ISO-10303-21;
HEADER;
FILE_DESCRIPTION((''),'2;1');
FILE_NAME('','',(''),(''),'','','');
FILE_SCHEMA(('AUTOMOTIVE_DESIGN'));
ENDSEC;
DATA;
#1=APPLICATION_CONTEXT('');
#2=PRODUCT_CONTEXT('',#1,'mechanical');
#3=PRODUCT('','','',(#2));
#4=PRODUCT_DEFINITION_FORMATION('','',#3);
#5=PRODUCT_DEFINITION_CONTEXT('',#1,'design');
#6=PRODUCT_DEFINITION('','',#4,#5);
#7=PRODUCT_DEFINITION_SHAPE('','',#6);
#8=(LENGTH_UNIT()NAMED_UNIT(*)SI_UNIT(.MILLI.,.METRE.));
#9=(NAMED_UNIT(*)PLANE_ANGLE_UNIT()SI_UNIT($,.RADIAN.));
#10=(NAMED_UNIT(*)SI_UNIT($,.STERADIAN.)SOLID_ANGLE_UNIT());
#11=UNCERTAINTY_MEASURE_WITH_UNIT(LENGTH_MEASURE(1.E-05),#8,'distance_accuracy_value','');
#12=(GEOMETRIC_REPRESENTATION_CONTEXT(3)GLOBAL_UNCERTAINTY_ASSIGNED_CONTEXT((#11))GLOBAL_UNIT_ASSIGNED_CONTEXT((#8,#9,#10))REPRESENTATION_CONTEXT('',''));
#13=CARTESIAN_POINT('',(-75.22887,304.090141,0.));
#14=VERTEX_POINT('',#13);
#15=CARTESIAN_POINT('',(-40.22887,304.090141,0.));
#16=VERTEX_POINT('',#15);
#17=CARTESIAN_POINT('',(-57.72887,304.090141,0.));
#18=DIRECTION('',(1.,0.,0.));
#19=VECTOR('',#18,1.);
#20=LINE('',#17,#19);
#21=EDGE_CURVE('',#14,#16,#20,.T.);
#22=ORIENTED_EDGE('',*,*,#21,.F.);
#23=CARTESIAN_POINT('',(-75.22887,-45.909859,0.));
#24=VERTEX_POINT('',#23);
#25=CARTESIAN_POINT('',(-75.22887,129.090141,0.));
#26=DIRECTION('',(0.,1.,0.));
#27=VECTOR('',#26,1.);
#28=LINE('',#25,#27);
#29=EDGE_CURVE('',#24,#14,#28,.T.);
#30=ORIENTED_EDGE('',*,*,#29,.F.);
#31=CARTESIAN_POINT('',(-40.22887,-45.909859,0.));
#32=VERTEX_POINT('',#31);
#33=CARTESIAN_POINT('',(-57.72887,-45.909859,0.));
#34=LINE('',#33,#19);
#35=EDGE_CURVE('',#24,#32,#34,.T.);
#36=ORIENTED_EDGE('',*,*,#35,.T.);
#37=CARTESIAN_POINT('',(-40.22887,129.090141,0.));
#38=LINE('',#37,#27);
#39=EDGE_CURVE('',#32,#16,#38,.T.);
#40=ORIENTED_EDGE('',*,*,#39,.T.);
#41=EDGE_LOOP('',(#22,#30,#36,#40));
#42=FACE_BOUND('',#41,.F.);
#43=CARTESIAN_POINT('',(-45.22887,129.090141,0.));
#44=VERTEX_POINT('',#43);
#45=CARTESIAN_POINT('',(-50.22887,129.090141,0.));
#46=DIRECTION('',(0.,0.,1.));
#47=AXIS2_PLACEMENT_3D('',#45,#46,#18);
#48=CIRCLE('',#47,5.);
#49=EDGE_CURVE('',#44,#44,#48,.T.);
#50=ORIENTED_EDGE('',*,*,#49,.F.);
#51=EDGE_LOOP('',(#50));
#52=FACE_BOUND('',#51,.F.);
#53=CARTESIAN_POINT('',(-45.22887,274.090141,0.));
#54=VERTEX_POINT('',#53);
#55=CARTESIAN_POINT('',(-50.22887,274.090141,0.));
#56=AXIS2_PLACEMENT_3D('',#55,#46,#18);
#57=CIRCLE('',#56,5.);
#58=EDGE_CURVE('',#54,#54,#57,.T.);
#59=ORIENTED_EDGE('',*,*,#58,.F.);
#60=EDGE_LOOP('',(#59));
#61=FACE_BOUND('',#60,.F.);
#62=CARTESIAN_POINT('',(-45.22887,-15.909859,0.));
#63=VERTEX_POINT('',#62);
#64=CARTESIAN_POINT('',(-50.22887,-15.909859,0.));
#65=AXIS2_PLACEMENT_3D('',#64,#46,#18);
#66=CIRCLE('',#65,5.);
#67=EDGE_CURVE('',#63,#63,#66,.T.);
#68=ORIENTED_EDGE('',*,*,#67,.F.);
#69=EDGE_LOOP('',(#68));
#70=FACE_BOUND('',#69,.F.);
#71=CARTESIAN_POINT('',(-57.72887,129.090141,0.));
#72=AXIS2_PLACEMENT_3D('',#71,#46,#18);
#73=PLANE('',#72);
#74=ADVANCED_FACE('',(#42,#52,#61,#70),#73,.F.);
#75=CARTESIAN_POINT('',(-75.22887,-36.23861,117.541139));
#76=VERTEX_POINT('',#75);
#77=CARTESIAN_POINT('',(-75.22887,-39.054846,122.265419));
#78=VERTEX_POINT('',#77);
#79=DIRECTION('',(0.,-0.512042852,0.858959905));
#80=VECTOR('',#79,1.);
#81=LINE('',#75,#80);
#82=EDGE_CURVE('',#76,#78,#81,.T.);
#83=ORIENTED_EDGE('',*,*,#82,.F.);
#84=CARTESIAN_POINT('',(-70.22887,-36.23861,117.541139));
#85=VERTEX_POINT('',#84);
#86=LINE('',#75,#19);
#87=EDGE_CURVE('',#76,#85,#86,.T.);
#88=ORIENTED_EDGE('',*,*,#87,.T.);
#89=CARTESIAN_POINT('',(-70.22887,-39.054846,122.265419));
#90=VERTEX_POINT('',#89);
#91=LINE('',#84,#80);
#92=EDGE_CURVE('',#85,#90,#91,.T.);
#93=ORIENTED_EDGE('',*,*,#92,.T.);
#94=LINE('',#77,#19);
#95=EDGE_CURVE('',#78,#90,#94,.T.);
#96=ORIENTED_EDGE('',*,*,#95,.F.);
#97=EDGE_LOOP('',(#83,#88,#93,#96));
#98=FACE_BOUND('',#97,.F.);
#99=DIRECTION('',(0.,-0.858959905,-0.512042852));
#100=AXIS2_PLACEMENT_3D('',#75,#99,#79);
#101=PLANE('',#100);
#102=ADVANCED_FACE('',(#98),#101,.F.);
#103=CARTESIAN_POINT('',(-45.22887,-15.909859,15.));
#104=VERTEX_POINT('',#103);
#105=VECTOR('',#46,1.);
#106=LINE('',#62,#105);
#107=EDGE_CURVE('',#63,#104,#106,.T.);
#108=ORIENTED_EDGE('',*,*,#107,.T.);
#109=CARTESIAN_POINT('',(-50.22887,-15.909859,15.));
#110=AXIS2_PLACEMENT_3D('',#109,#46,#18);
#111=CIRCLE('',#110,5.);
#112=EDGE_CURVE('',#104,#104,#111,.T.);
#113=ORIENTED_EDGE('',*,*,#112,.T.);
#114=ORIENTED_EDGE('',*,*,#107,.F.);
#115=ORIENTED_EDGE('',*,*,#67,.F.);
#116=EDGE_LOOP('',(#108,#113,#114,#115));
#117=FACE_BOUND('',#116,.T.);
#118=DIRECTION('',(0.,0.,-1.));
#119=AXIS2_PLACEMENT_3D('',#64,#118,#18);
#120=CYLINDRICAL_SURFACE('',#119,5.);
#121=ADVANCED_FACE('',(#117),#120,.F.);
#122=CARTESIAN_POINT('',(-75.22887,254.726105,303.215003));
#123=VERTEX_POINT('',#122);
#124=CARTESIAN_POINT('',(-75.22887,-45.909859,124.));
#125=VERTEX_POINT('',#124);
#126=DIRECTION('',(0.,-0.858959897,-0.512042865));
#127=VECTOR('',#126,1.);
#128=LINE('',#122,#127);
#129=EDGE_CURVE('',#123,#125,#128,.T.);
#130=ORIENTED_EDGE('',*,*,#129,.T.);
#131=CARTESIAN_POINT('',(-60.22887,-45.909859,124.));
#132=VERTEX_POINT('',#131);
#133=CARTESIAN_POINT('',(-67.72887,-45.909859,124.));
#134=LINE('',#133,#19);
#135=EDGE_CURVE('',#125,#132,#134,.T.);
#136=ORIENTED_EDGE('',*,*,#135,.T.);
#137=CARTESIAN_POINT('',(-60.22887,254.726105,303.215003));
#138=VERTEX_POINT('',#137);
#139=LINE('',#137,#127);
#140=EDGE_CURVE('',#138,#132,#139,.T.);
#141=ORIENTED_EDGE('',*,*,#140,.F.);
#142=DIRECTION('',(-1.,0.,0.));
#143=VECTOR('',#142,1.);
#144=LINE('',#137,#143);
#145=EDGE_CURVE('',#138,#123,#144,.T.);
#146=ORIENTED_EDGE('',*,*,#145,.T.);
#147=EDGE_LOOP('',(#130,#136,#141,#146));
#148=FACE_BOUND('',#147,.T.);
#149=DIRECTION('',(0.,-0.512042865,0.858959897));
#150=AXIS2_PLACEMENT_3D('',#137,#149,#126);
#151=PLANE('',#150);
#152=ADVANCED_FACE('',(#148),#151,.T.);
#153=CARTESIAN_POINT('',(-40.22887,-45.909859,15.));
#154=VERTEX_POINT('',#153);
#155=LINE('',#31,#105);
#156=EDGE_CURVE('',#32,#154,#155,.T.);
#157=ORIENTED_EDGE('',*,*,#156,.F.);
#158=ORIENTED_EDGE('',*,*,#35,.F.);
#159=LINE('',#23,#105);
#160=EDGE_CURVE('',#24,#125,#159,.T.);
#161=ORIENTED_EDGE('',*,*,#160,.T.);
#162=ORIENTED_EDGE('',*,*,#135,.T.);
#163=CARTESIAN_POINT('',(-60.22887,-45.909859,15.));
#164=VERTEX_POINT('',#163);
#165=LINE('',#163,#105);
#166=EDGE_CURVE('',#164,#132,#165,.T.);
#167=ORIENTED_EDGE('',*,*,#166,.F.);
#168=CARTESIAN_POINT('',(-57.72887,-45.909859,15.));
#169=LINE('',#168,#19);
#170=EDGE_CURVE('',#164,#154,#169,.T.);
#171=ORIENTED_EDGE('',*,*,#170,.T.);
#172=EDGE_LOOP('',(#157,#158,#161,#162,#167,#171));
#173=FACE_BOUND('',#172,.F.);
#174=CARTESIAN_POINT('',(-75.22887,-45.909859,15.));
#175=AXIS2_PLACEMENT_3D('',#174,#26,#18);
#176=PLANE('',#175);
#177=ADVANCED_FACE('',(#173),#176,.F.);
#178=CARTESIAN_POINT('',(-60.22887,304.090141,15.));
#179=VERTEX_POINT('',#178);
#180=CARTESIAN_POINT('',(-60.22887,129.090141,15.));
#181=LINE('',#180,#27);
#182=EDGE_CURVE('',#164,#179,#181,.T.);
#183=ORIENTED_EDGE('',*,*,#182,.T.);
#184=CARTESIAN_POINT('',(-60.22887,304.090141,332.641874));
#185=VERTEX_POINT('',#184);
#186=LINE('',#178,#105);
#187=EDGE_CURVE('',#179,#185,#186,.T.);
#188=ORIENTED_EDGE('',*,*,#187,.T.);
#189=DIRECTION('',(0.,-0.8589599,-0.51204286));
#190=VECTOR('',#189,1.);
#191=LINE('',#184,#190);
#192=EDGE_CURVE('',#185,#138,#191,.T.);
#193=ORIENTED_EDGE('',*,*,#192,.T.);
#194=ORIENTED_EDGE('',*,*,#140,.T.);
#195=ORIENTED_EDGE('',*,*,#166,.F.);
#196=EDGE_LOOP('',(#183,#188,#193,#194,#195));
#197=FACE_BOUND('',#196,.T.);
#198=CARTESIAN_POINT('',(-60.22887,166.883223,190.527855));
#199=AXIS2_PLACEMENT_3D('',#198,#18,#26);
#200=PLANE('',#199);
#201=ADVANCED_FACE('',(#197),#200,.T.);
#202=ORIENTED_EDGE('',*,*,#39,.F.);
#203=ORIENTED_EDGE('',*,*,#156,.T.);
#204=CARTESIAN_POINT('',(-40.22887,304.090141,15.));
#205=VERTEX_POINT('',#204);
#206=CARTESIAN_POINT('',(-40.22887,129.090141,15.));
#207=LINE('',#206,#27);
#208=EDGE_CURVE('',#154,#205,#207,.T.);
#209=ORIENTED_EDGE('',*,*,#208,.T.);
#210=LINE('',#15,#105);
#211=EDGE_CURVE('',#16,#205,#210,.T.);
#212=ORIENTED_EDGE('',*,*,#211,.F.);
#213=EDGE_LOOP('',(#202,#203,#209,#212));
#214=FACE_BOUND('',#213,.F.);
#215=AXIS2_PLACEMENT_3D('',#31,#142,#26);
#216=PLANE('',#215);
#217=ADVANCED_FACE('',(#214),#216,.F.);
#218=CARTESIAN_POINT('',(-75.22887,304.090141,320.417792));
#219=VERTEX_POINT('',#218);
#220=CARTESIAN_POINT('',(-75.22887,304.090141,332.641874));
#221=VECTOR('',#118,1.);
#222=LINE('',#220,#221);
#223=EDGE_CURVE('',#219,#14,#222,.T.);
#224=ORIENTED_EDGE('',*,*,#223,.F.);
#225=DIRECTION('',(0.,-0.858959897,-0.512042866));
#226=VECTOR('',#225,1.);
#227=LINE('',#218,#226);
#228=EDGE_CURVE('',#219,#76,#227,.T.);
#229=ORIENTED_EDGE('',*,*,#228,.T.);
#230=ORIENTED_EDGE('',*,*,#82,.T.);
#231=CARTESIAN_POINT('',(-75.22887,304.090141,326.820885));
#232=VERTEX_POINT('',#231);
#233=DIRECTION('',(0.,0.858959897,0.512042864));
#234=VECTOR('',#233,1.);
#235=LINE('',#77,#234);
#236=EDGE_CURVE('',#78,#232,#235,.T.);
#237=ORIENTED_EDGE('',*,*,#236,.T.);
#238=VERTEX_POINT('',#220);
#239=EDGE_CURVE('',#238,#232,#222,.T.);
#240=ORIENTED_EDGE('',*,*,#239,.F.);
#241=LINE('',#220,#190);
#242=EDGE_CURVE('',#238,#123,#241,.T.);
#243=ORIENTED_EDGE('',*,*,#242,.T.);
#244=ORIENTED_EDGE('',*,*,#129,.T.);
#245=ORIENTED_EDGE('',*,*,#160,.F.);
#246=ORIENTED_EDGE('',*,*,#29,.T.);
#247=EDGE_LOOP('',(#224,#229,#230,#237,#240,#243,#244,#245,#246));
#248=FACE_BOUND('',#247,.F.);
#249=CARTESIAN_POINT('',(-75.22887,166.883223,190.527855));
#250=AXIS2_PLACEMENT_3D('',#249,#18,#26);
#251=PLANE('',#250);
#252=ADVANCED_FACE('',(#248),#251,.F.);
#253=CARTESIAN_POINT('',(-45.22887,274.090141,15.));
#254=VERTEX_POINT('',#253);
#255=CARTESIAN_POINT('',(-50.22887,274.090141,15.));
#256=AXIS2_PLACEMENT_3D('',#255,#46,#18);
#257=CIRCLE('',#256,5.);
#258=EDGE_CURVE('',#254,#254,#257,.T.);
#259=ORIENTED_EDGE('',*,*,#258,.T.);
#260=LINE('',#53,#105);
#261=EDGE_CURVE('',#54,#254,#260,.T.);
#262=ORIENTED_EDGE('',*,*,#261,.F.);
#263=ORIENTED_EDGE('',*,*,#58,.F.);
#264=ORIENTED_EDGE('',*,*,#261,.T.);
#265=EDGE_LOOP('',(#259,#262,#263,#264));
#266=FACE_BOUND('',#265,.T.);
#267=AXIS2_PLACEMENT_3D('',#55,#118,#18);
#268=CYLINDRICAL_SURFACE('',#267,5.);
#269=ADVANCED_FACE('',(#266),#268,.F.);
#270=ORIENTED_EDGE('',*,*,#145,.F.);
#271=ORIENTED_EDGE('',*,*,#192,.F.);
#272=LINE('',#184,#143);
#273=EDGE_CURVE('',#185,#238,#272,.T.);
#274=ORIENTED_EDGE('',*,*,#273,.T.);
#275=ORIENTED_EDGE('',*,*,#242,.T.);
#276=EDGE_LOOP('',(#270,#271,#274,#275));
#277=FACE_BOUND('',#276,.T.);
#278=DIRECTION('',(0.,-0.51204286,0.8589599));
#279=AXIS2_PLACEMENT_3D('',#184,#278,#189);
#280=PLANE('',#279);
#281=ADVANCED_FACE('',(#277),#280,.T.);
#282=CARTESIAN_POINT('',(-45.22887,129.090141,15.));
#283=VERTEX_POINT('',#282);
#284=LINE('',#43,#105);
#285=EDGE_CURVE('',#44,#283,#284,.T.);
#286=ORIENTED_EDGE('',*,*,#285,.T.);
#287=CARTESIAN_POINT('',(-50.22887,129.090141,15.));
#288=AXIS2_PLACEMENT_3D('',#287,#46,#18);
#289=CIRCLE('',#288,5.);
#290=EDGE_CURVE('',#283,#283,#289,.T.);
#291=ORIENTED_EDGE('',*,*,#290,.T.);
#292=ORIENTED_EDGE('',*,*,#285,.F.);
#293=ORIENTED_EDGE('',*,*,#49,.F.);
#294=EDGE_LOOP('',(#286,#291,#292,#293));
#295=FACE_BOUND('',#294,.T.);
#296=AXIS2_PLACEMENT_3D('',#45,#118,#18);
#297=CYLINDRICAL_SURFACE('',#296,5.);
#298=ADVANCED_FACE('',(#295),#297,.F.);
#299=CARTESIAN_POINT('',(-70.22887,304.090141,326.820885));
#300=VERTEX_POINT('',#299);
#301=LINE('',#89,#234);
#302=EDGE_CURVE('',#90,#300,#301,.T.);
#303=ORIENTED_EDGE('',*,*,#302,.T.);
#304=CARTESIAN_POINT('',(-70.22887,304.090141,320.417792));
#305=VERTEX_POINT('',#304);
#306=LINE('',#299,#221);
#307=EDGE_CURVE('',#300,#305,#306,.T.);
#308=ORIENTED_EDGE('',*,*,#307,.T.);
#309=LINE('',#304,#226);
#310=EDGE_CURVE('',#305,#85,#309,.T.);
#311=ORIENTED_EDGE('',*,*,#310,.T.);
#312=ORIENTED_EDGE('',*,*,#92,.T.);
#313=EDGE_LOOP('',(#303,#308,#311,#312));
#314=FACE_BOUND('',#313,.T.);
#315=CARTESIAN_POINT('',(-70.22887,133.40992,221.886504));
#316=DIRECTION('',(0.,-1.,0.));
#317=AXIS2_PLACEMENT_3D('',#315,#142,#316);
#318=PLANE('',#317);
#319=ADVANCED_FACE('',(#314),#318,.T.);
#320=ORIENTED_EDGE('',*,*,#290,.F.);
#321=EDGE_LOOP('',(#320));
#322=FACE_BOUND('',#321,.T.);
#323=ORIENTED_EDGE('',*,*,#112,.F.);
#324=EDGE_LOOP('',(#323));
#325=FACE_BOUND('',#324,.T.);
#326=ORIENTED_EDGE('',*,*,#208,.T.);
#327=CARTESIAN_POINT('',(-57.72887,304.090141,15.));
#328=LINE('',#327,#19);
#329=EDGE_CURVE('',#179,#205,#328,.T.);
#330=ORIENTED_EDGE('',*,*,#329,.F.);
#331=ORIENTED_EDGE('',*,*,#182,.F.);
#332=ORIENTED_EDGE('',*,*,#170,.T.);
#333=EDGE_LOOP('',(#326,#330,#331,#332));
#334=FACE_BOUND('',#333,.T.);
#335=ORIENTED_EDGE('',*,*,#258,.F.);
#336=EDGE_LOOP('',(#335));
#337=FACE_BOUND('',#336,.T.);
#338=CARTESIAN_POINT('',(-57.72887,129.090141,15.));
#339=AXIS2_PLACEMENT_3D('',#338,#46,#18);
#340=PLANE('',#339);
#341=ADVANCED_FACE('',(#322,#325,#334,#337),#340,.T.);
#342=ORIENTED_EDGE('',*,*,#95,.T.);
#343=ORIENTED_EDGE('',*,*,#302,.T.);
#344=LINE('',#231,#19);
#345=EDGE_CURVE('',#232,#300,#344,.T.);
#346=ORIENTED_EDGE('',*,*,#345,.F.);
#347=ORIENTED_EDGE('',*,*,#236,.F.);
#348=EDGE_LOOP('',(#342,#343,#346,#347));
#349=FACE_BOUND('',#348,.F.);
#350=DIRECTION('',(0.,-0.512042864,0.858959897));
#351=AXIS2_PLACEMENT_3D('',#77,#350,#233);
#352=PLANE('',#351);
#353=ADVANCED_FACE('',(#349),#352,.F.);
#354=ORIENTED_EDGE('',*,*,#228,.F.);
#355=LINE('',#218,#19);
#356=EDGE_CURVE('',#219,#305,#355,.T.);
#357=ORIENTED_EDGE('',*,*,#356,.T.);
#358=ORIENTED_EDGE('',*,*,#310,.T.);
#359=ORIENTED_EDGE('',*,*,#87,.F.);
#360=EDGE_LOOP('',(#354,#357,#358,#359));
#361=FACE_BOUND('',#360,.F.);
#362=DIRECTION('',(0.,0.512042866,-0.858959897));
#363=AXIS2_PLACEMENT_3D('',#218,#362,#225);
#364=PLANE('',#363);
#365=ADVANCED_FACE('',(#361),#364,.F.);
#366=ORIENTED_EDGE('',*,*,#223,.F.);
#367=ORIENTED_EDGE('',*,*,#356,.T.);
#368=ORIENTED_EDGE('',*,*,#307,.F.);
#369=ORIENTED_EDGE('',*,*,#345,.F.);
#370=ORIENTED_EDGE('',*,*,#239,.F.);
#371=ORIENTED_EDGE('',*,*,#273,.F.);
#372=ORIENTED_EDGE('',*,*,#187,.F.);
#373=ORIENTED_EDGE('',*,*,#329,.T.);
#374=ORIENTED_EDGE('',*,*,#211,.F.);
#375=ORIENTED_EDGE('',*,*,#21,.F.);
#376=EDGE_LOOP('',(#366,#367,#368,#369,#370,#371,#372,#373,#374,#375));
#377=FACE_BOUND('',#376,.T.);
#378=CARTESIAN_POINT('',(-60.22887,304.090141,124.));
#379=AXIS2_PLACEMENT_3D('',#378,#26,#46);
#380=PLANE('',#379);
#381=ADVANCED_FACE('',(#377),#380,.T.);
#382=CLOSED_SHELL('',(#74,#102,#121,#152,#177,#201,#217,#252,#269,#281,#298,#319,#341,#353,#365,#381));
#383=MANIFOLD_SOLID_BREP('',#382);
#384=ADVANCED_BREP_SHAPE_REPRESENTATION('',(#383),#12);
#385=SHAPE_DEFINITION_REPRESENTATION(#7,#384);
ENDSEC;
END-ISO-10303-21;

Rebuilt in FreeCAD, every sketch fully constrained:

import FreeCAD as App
import Part
import Sketcher

V = App.Vector
Q = App.Units.Quantity

doc = App.newDocument("Part")
params = doc.addObject("Spreadsheet::Sheet", "Params")
for row, (alias, value) in enumerate([
    ("sketch1_diameter", "10 mm"),
    ("sketch1_width", "35 mm"),
    ("sketch1_height", "350 mm"),
    ("pad1_length", "15 mm"),
    ("sketch2_width", "15 mm"),
    ("sketch2_height", "350 mm"),
    ("pad2_length", "109 mm"),
    ("sketch3_width", "350 mm"),
    ("sketch3_length", "350 mm"),
    ("pad3_length", "15 mm"),
    ("sketch4_length", "5.500001 mm"),
    ("pocket1_length", "5 mm"),
], start=1):
    params.set(f"A{row}", alias)
    params.set(f"B{row}", "=" + value)
    params.setAlias(f"B{row}", alias)

body = doc.addObject("PartDesign::Body", "Body")

# Sketch on XY plane
sketch1 = doc.addObject("Sketcher::SketchObject", "Sketch")
body.addObject(sketch1)
sketch1.AttachmentSupport = (doc.XY_Plane, [""])
sketch1.MapMode = "FlatFace"
sketch1.addGeometry(Part.LineSegment(V(-75, 304, 0), V(-75, -46, 0)), False)
sketch1.addGeometry(Part.LineSegment(V(-75, -46, 0), V(-40, -46, 0)), False)
sketch1.addGeometry(Part.LineSegment(V(-40, -46, 0), V(-40, 304, 0)), False)
sketch1.addGeometry(Part.LineSegment(V(-40, 304, 0), V(-75, 304, 0)), False)
sketch1.addGeometry(Part.Circle(V(-50, -16, 0), V(0, 0, 1), 5), False)
sketch1.addGeometry(Part.Circle(V(-50, 129, 0), V(0, 0, 1), 5), False)
sketch1.addGeometry(Part.Circle(V(-50, 274, 0), V(0, 0, 1), 5), False)
sketch1.addConstraint(Sketcher.Constraint("Coincident", 0, 2, 1, 1))
sketch1.addConstraint(Sketcher.Constraint("Coincident", 1, 2, 2, 1))
sketch1.addConstraint(Sketcher.Constraint("Coincident", 2, 2, 3, 1))
sketch1.addConstraint(Sketcher.Constraint("Coincident", 3, 2, 0, 1))
sketch1.addConstraint(Sketcher.Constraint("Vertical", 0))
sketch1.addConstraint(Sketcher.Constraint("Horizontal", 1))
sketch1.addConstraint(Sketcher.Constraint("Vertical", 2))
sketch1.addConstraint(Sketcher.Constraint("Horizontal", 3))
sketch1.addConstraint(Sketcher.Constraint("Equal", 4, 5))
sketch1.addConstraint(Sketcher.Constraint("Equal", 5, 6))
sketch1.addConstraint(Sketcher.Constraint("Vertical", 4, 3, 5, 3))
sketch1.addConstraint(Sketcher.Constraint("Vertical", 5, 3, 6, 3))
sketch1.addConstraint(Sketcher.Constraint("Diameter", 4, 10.0))
sketch1.addConstraint(Sketcher.Constraint("DistanceX", 1, 1, 1, 2, 35.0))
sketch1.addConstraint(Sketcher.Constraint("DistanceY", 0, 2, 0, 1, 350.0))
sketch1.addConstraint(Sketcher.Constraint("DistanceY", 4, 3, 5, 3, 145.0))
sketch1.addConstraint(Sketcher.Constraint("DistanceY", 5, 3, 6, 3, 145.0))
sketch1.addConstraint(Sketcher.Constraint("DistanceX", 0, 2, 4, 3, 25.0))
sketch1.addConstraint(Sketcher.Constraint("DistanceY", 0, 2, 4, 3, 30.0))
sketch1.addConstraint(Sketcher.Constraint("DistanceX", 4, 3, -1, 1, 50.22887))
sketch1.addConstraint(Sketcher.Constraint("DistanceY", 4, 3, -1, 1, 15.909859))
sketch1.setExpression("Constraints[12]", "Params.sketch1_diameter")
sketch1.setExpression("Constraints[13]", "Params.sketch1_width")
sketch1.setExpression("Constraints[14]", "Params.sketch1_height")
pad1 = doc.addObject("PartDesign::Pad", "Pad")
body.addObject(pad1)
pad1.Profile = sketch1
pad1.setExpression("Length", "Params.pad1_length")

# Sketch on XY plane
sketch2 = doc.addObject("Sketcher::SketchObject", "Sketch001")
body.addObject(sketch2)
sketch2.AttachmentSupport = (doc.XY_Plane, [""])
sketch2.MapMode = "FlatFace"
sketch2.AttachmentOffset = App.Placement(V(0, 0, 15), App.Rotation())
sketch2.addGeometry(Part.LineSegment(V(-75, 304, 0), V(-75, -46, 0)), False)
sketch2.addGeometry(Part.LineSegment(V(-75, -46, 0), V(-60, -46, 0)), False)
sketch2.addGeometry(Part.LineSegment(V(-60, -46, 0), V(-60, 304, 0)), False)
sketch2.addGeometry(Part.LineSegment(V(-60, 304, 0), V(-75, 304, 0)), False)
sketch2.addConstraint(Sketcher.Constraint("Coincident", 0, 2, 1, 1))
sketch2.addConstraint(Sketcher.Constraint("Coincident", 1, 2, 2, 1))
sketch2.addConstraint(Sketcher.Constraint("Coincident", 2, 2, 3, 1))
sketch2.addConstraint(Sketcher.Constraint("Coincident", 3, 2, 0, 1))
sketch2.addConstraint(Sketcher.Constraint("Vertical", 0))
sketch2.addConstraint(Sketcher.Constraint("Horizontal", 1))
sketch2.addConstraint(Sketcher.Constraint("Vertical", 2))
sketch2.addConstraint(Sketcher.Constraint("Horizontal", 3))
sketch2.addConstraint(Sketcher.Constraint("DistanceX", 1, 1, 1, 2, 15.0))
sketch2.addConstraint(Sketcher.Constraint("DistanceY", 0, 2, 0, 1, 350.0))
sketch2.addConstraint(Sketcher.Constraint("DistanceX", 0, 2, -1, 1, 75.22887))
sketch2.addConstraint(Sketcher.Constraint("DistanceY", 0, 2, -1, 1, 45.909859))
sketch2.setExpression("Constraints[8]", "Params.sketch2_width")
sketch2.setExpression("Constraints[9]", "Params.sketch2_height")
pad2 = doc.addObject("PartDesign::Pad", "Pad001")
body.addObject(pad2)
pad2.Profile = sketch2
pad2.setExpression("Length", "Params.pad2_length")

# Sketch on YZ plane
sketch3 = doc.addObject("Sketcher::SketchObject", "Sketch002")
body.addObject(sketch3)
sketch3.AttachmentSupport = (doc.YZ_Plane, [""])
sketch3.MapMode = "FlatFace"
sketch3.AttachmentOffset = App.Placement(V(0, 0, -60.22887), App.Rotation())
sketch3.addGeometry(Part.LineSegment(V(255, 303, 0), V(-46, 124, 0)), False)
sketch3.addGeometry(Part.LineSegment(V(-46, 124, 0), V(304, 124, 0)), False)
sketch3.addGeometry(Part.LineSegment(V(304, 124, 0), V(304, 333, 0)), False)
sketch3.addGeometry(Part.LineSegment(V(304, 333, 0), V(255, 303, 0)), False)
sketch3.addConstraint(Sketcher.Constraint("Coincident", 0, 2, 1, 1))
sketch3.addConstraint(Sketcher.Constraint("Coincident", 1, 2, 2, 1))
sketch3.addConstraint(Sketcher.Constraint("Coincident", 2, 2, 3, 1))
sketch3.addConstraint(Sketcher.Constraint("Coincident", 3, 2, 0, 1))
sketch3.addConstraint(Sketcher.Constraint("Horizontal", 1))
sketch3.addConstraint(Sketcher.Constraint("Vertical", 2))
sketch3.addConstraint(Sketcher.Constraint("Parallel", 0, 3))
sketch3.addConstraint(Sketcher.Constraint("DistanceX", 1, 1, 1, 2, 350.0))
sketch3.addConstraint(Sketcher.Constraint("Distance", 0, 350.0))
sketch3.addConstraint(Sketcher.Constraint("DistanceY", -1, 1, 0, 2, 124.0))
sketch3.addConstraint(Sketcher.Constraint("Angle", 0, Q("-149.2 deg")))
sketch3.addConstraint(Sketcher.Constraint("DistanceX", 0, 2, -1, 1, 45.909859))
sketch3.setExpression("Constraints[7]", "Params.sketch3_width")
sketch3.setExpression("Constraints[8]", "Params.sketch3_length")
pad3 = doc.addObject("PartDesign::Pad", "Pad002")
body.addObject(pad3)
pad3.Profile = sketch3
pad3.setExpression("Length", "Params.pad3_length")
pad3.Reversed = True

# Sketch on YZ plane
sketch4 = doc.addObject("Sketcher::SketchObject", "Sketch003")
body.addObject(sketch4)
sketch4.AttachmentSupport = (doc.YZ_Plane, [""])
sketch4.MapMode = "FlatFace"
sketch4.AttachmentOffset = App.Placement(V(0, 0, -75.22887), App.Rotation())
sketch4.addGeometry(Part.LineSegment(V(-36, 118, 0), V(-39, 122, 0)), False)
sketch4.addGeometry(Part.LineSegment(V(-39, 122, 0), V(304, 327, 0)), False)
sketch4.addGeometry(Part.LineSegment(V(304, 327, 0), V(304, 320, 0)), False)
sketch4.addGeometry(Part.LineSegment(V(304, 320, 0), V(-36, 118, 0)), False)
sketch4.addConstraint(Sketcher.Constraint("Coincident", 0, 2, 1, 1))
sketch4.addConstraint(Sketcher.Constraint("Coincident", 1, 2, 2, 1))
sketch4.addConstraint(Sketcher.Constraint("Coincident", 2, 2, 3, 1))
sketch4.addConstraint(Sketcher.Constraint("Coincident", 3, 2, 0, 1))
sketch4.addConstraint(Sketcher.Constraint("Vertical", 2))
sketch4.addConstraint(Sketcher.Constraint("Perpendicular", 0, 1))
sketch4.addConstraint(Sketcher.Constraint("Parallel", 1, 3))
sketch4.addConstraint(Sketcher.Constraint("Angle", 0, Q("120.799999 deg")))
sketch4.addConstraint(Sketcher.Constraint("Distance", 0, 5.500001))
sketch4.addConstraint(Sketcher.Constraint("Distance", 1, 399.48895))
sketch4.addConstraint(Sketcher.Constraint("DistanceY", -1, 1, 0, 2, 122.265419))
sketch4.addConstraint(Sketcher.Constraint("DistanceX", -1, 1, 1, 2, 304.090141))
sketch4.setExpression("Constraints[8]", "Params.sketch4_length")
pocket1 = doc.addObject("PartDesign::Pocket", "Pocket")
body.addObject(pocket1)
pocket1.Profile = sketch4
pocket1.setExpression("Length", "Params.pocket1_length")
pocket1.Reversed = True

doc.recompute()
